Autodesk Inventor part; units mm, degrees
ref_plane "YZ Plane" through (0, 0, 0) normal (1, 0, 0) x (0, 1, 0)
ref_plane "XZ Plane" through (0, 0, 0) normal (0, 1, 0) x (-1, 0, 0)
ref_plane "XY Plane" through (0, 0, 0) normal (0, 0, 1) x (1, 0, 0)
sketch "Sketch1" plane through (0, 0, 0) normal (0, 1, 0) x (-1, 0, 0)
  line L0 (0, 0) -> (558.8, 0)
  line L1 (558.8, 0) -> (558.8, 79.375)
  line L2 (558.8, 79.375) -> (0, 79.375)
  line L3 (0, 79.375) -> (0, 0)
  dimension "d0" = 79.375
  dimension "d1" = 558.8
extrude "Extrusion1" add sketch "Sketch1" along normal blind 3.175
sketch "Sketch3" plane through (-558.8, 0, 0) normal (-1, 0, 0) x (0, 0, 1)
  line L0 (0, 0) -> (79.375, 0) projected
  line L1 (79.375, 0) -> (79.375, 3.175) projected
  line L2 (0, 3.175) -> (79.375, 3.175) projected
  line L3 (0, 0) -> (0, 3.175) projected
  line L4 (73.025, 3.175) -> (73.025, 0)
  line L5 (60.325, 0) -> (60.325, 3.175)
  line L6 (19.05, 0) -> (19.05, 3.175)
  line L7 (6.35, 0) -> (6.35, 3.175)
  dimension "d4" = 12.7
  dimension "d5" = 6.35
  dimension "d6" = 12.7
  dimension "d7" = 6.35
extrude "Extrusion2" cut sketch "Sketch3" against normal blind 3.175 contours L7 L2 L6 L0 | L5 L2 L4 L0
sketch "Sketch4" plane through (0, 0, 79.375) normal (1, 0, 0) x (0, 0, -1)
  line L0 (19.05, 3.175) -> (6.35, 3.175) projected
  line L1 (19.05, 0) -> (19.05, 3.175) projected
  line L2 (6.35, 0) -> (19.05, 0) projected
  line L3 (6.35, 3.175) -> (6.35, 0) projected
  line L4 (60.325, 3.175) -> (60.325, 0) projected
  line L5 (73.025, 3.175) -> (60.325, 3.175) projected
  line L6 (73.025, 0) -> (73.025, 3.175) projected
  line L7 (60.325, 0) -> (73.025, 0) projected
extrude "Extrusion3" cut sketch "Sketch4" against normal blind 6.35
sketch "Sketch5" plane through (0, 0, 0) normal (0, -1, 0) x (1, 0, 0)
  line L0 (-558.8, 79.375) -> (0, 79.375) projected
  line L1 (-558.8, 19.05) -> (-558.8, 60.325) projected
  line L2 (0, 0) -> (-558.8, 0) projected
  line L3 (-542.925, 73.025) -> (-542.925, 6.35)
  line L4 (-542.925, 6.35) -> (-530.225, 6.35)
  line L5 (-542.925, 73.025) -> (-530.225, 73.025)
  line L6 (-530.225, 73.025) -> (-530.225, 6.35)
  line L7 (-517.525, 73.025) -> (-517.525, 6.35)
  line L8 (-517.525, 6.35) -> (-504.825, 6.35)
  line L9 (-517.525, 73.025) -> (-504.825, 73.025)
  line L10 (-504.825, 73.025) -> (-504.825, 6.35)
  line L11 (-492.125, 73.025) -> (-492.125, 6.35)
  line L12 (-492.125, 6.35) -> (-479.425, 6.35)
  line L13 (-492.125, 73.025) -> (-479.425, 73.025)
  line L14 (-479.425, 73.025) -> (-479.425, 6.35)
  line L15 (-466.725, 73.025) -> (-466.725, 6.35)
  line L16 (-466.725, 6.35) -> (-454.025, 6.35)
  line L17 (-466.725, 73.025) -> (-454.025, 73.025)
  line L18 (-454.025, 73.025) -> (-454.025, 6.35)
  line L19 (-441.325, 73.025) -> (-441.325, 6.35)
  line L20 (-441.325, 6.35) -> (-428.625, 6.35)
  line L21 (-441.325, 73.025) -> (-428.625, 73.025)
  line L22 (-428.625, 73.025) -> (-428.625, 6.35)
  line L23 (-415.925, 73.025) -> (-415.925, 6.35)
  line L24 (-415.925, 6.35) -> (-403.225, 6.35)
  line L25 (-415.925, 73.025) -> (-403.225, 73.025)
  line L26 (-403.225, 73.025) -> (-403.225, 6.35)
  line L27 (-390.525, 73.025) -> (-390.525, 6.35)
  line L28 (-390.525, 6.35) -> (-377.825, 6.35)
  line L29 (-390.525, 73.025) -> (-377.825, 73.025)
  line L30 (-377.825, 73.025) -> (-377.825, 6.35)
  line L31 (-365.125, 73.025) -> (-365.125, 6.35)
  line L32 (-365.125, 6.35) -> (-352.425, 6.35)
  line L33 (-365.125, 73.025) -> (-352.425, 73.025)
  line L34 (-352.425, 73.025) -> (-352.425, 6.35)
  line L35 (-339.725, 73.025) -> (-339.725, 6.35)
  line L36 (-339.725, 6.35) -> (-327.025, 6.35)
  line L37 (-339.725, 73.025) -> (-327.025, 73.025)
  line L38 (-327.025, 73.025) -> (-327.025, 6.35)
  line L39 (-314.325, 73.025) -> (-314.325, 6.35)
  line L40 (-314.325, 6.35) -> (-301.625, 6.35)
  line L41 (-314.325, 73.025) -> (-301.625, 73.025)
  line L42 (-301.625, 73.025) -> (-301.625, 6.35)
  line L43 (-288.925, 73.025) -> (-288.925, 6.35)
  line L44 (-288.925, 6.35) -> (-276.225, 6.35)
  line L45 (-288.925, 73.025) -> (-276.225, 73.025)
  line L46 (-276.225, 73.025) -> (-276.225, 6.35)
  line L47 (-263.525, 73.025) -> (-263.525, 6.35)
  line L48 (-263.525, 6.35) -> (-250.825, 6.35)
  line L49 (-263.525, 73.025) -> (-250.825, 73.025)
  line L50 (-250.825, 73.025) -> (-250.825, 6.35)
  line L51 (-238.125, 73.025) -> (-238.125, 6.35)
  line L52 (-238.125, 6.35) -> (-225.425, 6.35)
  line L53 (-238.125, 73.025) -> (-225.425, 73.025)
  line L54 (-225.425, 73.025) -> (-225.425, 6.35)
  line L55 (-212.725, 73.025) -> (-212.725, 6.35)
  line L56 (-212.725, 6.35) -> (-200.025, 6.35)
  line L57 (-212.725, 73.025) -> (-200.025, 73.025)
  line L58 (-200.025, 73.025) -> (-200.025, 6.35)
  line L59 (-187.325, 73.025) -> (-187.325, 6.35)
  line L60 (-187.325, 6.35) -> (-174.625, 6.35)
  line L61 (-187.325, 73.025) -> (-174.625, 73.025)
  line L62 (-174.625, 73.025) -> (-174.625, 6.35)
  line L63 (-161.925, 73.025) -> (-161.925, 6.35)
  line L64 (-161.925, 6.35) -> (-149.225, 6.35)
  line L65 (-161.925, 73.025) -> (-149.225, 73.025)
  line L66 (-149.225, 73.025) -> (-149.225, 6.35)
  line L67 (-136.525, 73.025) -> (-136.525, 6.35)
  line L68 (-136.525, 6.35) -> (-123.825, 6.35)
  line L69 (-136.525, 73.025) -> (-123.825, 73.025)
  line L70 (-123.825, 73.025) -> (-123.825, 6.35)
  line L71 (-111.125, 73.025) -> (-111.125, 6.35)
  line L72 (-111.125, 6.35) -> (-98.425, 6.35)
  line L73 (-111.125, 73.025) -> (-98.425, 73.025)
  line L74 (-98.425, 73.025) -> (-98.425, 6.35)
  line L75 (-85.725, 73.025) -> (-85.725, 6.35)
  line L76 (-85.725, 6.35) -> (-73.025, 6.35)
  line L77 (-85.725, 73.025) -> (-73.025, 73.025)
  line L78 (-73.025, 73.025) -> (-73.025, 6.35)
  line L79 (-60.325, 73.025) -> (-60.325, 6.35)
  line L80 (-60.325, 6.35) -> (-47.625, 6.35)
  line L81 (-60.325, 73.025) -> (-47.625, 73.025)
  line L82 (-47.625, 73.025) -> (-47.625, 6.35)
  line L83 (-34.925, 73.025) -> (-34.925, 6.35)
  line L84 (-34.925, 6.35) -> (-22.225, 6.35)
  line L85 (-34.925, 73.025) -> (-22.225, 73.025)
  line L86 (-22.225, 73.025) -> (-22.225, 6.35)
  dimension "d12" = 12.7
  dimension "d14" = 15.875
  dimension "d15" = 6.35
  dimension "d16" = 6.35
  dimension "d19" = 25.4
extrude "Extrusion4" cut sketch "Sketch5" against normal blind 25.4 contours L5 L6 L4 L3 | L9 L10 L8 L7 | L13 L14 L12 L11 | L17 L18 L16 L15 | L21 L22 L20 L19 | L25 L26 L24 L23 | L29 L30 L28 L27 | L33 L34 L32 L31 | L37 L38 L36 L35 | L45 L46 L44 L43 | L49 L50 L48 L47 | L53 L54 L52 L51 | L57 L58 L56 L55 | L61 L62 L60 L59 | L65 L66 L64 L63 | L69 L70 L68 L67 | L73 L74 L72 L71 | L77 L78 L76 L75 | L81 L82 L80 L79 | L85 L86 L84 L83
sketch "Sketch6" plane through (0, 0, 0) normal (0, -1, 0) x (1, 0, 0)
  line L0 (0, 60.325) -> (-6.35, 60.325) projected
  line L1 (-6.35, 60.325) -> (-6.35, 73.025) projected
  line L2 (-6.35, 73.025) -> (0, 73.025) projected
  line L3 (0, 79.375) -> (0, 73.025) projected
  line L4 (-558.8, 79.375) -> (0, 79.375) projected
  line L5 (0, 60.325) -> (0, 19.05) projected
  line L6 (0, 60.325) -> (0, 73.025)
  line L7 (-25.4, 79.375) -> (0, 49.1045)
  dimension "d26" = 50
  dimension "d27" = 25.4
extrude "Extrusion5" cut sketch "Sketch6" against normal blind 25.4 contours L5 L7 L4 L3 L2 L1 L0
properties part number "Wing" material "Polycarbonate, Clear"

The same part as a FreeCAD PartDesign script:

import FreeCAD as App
import Part
import Sketcher
from FreeCAD import Vector
Q = App.Units.Quantity


def add_polygon(sketch, points):
    """Adds a closed chain of lines whose ends are joined by coincident constraints."""
    first, n = sketch.GeometryCount, len(points)
    for a, b in zip(points, points[1:] + points[:1]):
        sketch.addGeometry(Part.LineSegment(App.Vector(*a, 0), App.Vector(*b, 0)), False)
    for i in range(n):
        sketch.addConstraint(Sketcher.Constraint("Coincident", first + i, 2, first + (i + 1) % n, 1))

doc = App.newDocument("Part")
body = doc.addObject("PartDesign::Body", "Body")

# Sketch on XZ plane
sketch1 = body.newObject("Sketcher::SketchObject", "Sketch")
sketch1.AttachmentSupport = (doc.getObject("XZ_Plane"), [""])
sketch1.MapMode = "FlatFace"
add_polygon(sketch1, [(0, 79.375), (0, 0), (-558.8, 0), (-558.8, 79.375)])  # lines 0-3
sketch1.addConstraint([
    Sketcher.Constraint("Vertical", 0),
    Sketcher.Constraint("Horizontal", 1),
    Sketcher.Constraint("Vertical", 2),
    Sketcher.Constraint("Horizontal", 3),
    Sketcher.Constraint("Coincident", 0, 2, -1, 1),
    Sketcher.Constraint("DistanceX", 1, 2, 1, 1, Q("22 in")),
    Sketcher.Constraint("DistanceY", 0, 2, 0, 1, Q("3.125 in")),
])
pad1 = body.newObject("PartDesign::Pad", "Pad")
pad1.Profile = sketch1
pad1.Length = Q("0.125 in")
pad1.Reversed = True

# Sketch on YZ plane
sketch2 = body.newObject("Sketcher::SketchObject", "Sketch001")
sketch2.AttachmentSupport = (doc.getObject("YZ_Plane"), [""])
sketch2.MapMode = "FlatFace"
sketch2.AttachmentOffset = App.Placement(Vector(0, 0, -22 * 25.4), App.Rotation())
add_polygon(sketch2, [(3.175, 6.35), (0, 6.35), (0, 19.05), (3.175, 19.05)])  # lines 0-3
add_polygon(sketch2, [(3.175, 60.325), (0, 60.325), (0, 73.025), (3.175, 73.025)])  # lines 4-7
sketch2.addConstraint([
    Sketcher.Constraint("Horizontal", 0),
    Sketcher.Constraint("Vertical", 1),
    Sketcher.Constraint("Horizontal", 2),
    Sketcher.Constraint("Vertical", 3),
    Sketcher.Constraint("Horizontal", 4),
    Sketcher.Constraint("Vertical", 5),
    Sketcher.Constraint("Horizontal", 6),
    Sketcher.Constraint("Vertical", 7),
    Sketcher.Constraint("PointOnObject", 0, 2, -2),
    Sketcher.Constraint("PointOnObject", 4, 2, -2),
    Sketcher.Constraint("Vertical", 3, 2, 6, 2),
    Sketcher.Constraint("Equal", 3, 5),
    Sketcher.Constraint("DistanceY", 1, 1, 1, 2, Q("0.5 in")),
    Sketcher.Constraint("DistanceY", -1, 1, 0, 2, Q("0.25 in")),
    Sketcher.Constraint("DistanceX", 0, 2, 0, 1, Q("0.125 in")),
    Sketcher.Constraint("DistanceY", -1, 1, 4, 2, Q("2.375 in")),
])
pocket1 = body.newObject("PartDesign::Pocket", "Pocket")
pocket1.Profile = sketch2
pocket1.Length = Q("0.125 in")
pocket1.Reversed = True

# Sketch on YZ plane
sketch3 = body.newObject("Sketcher::SketchObject", "Sketch002")
sketch3.AttachmentSupport = (doc.getObject("YZ_Plane"), [""])
sketch3.MapMode = "FlatFace"
add_polygon(sketch3, [(0, 60.325), (3.175, 60.325), (3.175, 73.025), (0, 73.025)])  # lines 0-3
add_polygon(sketch3, [(3.175, 6.35), (3.175, 19.05), (0, 19.05), (0, 6.35)])  # lines 4-7
sketch3.addConstraint([
    Sketcher.Constraint("Horizontal", 0),
    Sketcher.Constraint("Vertical", 1),
    Sketcher.Constraint("Horizontal", 2),
    Sketcher.Constraint("Vertical", 3),
    Sketcher.Constraint("Vertical", 4),
    Sketcher.Constraint("Horizontal", 5),
    Sketcher.Constraint("Vertical", 6),
    Sketcher.Constraint("Horizontal", 7),
    Sketcher.Constraint("PointOnObject", 2, 2, -2),
    Sketcher.Constraint("PointOnObject", 5, 2, -2),
    Sketcher.Constraint("Vertical", 1, 2, 4, 2),
    Sketcher.Constraint("Equal", 3, 4),
    Sketcher.Constraint("DistanceY", 1, 1, 1, 2, Q("0.5 in")),
    Sketcher.Constraint("DistanceX", 0, 1, 0, 2, Q("0.125 in")),
    Sketcher.Constraint("DistanceY", -1, 1, 4, 2, Q("0.75 in")),
    Sketcher.Constraint("DistanceY", -1, 1, 0, 2, Q("2.375 in")),
])
pocket2 = body.newObject("PartDesign::Pocket", "Pocket001")
pocket2.Profile = sketch3
pocket2.Length = Q("0.25 in")

# Sketch on XZ plane
sketch4 = body.newObject("Sketcher::SketchObject", "Sketch003")
sketch4.AttachmentSupport = (doc.getObject("XZ_Plane"), [""])
sketch4.MapMode = "FlatFace"
add_polygon(sketch4, [(-530.225, 73.025), (-542.925, 73.025), (-542.925, 6.35), (-530.225, 6.35)])  # lines 0-3
add_polygon(sketch4, [(-504.825, 73.025), (-517.525, 73.025), (-517.525, 6.35), (-504.825, 6.35)])  # lines 4-7
add_polygon(sketch4, [(-479.425, 73.025), (-492.125, 73.025), (-492.125, 6.35), (-479.425, 6.35)])  # lines 8-11
add_polygon(sketch4, [(-454.025, 73.025), (-466.725, 73.025), (-466.725, 6.35), (-454.025, 6.35)])  # lines 12-15
add_polygon(sketch4, [(-428.625, 73.025), (-441.325, 73.025), (-441.325, 6.35), (-428.625, 6.35)])  # lines 16-19
add_polygon(sketch4, [(-403.225, 73.025), (-415.925, 73.025), (-415.925, 6.35), (-403.225, 6.35)])  # lines 20-23
add_polygon(sketch4, [(-377.825, 73.025), (-390.525, 73.025), (-390.525, 6.35), (-377.825, 6.35)])  # lines 24-27
add_polygon(sketch4, [(-352.425, 73.025), (-365.125, 73.025), (-365.125, 6.35), (-352.425, 6.35)])  # lines 28-31
add_polygon(sketch4, [(-327.025, 73.025), (-339.725, 73.025), (-339.725, 6.35), (-327.025, 6.35)])  # lines 32-35
add_polygon(sketch4, [(-276.225, 73.025), (-288.925, 73.025), (-288.925, 6.35), (-276.225, 6.35)])  # lines 36-39
add_polygon(sketch4, [(-250.825, 73.025), (-263.525, 73.025), (-263.525, 6.35), (-250.825, 6.35)])  # lines 40-43
add_polygon(sketch4, [(-225.425, 73.025), (-238.125, 73.025), (-238.125, 6.35), (-225.425, 6.35)])  # lines 44-47
add_polygon(sketch4, [(-200.025, 73.025), (-212.725, 73.025), (-212.725, 6.35), (-200.025, 6.35)])  # lines 48-51
add_polygon(sketch4, [(-174.625, 73.025), (-187.325, 73.025), (-187.325, 6.35), (-174.625, 6.35)])  # lines 52-55
add_polygon(sketch4, [(-149.225, 73.025), (-161.925, 73.025), (-161.925, 6.35), (-149.225, 6.35)])  # lines 56-59
add_polygon(sketch4, [(-123.825, 73.025), (-136.525, 73.025), (-136.525, 6.35), (-123.825, 6.35)])  # lines 60-63
add_polygon(sketch4, [(-98.425, 73.025), (-111.125, 73.025), (-111.125, 6.35), (-98.425, 6.35)])  # lines 64-67
add_polygon(sketch4, [(-73.025, 73.025), (-85.725, 73.025), (-85.725, 6.35), (-73.025, 6.35)])  # lines 68-71
add_polygon(sketch4, [(-47.625, 73.025), (-60.325, 73.025), (-60.325, 6.35), (-47.625, 6.35)])  # lines 72-75
add_polygon(sketch4, [(-22.225, 73.025), (-34.925, 73.025), (-34.925, 6.35), (-22.225, 6.35)])  # lines 76-79
sketch4.addConstraint([
    Sketcher.Constraint("Horizontal", 0),
    Sketcher.Constraint("Vertical", 1),
    Sketcher.Constraint("Horizontal", 2),
    Sketcher.Constraint("Vertical", 3),
    Sketcher.Constraint("Horizontal", 4),
    Sketcher.Constraint("Vertical", 5),
    Sketcher.Constraint("Horizontal", 6),
    Sketcher.Constraint("Vertical", 7),
    Sketcher.Constraint("Horizontal", 8),
    Sketcher.Constraint("Vertical", 9),
    Sketcher.Constraint("Horizontal", 10),
    Sketcher.Constraint("Vertical", 11),
    Sketcher.Constraint("Horizontal", 12),
    Sketcher.Constraint("Vertical", 13),
    Sketcher.Constraint("Horizontal", 14),
    Sketcher.Constraint("Vertical", 15),
    Sketcher.Constraint("Horizontal", 16),
    Sketcher.Constraint("Vertical", 17),
    Sketcher.Constraint("Horizontal", 18),
    Sketcher.Constraint("Vertical", 19),
    Sketcher.Constraint("Horizontal", 20),
    Sketcher.Constraint("Vertical", 21),
    Sketcher.Constraint("Horizontal", 22),
    Sketcher.Constraint("Vertical", 23),
    Sketcher.Constraint("Horizontal", 24),
    Sketcher.Constraint("Vertical", 25),
    Sketcher.Constraint("Horizontal", 26),
    Sketcher.Constraint("Vertical", 27),
    Sketcher.Constraint("Horizontal", 28),
    Sketcher.Constraint("Vertical", 29),
    Sketcher.Constraint("Horizontal", 30),
    Sketcher.Constraint("Vertical", 31),
    Sketcher.Constraint("Horizontal", 32),
    Sketcher.Constraint("Vertical", 33),
    Sketcher.Constraint("Horizontal", 34),
    Sketcher.Constraint("Vertical", 35),
    Sketcher.Constraint("Horizontal", 36),
    Sketcher.Constraint("Vertical", 37),
    Sketcher.Constraint("Horizontal", 38),
    Sketcher.Constraint("Vertical", 39),
    Sketcher.Constraint("Horizontal", 40),
    Sketcher.Constraint("Vertical", 41),
    Sketcher.Constraint("Horizontal", 42),
    Sketcher.Constraint("Vertical", 43),
    Sketcher.Constraint("Horizontal", 44),
    Sketcher.Constraint("Vertical", 45),
    Sketcher.Constraint("Horizontal", 46),
    Sketcher.Constraint("Vertical", 47),
    Sketcher.Constraint("Horizontal", 48),
    Sketcher.Constraint("Vertical", 49),
    Sketcher.Constraint("Horizontal", 50),
    Sketcher.Constraint("Vertical", 51),
    Sketcher.Constraint("Horizontal", 52),
    Sketcher.Constraint("Vertical", 53),
    Sketcher.Constraint("Horizontal", 54),
    Sketcher.Constraint("Vertical", 55),
    Sketcher.Constraint("Horizontal", 56),
    Sketcher.Constraint("Vertical", 57),
    Sketcher.Constraint("Horizontal", 58),
    Sketcher.Constraint("Vertical", 59),
    Sketcher.Constraint("Horizontal", 60),
    Sketcher.Constraint("Vertical", 61),
    Sketcher.Constraint("Horizontal", 62),
    Sketcher.Constraint("Vertical", 63),
    Sketcher.Constraint("Horizontal", 64),
    Sketcher.Constraint("Vertical", 65),
    Sketcher.Constraint("Horizontal", 66),
    Sketcher.Constraint("Vertical", 67),
    Sketcher.Constraint("Horizontal", 68),
    Sketcher.Constraint("Vertical", 69),
    Sketcher.Constraint("Horizontal", 70),
    Sketcher.Constraint("Vertical", 71),
    Sketcher.Constraint("Horizontal", 72),
    Sketcher.Constraint("Vertical", 73),
    Sketcher.Constraint("Horizontal", 74),
    Sketcher.Constraint("Vertical", 75),
    Sketcher.Constraint("Horizontal", 76),
    Sketcher.Constraint("Vertical", 77),
    Sketcher.Constraint("Horizontal", 78),
    Sketcher.Constraint("Vertical", 79),
    Sketcher.Constraint("Horizontal", 3, 2, 4, 2),
    Sketcher.Constraint("Horizontal", 2, 2, 5, 2),
    Sketcher.Constraint("Horizontal", 7, 2, 8, 2),
    Sketcher.Constraint("Horizontal", 6, 2, 9, 2),
    Sketcher.Constraint("Horizontal", 11, 2, 12, 2),
    Sketcher.Constraint("Horizontal", 10, 2, 13, 2),
    Sketcher.Constraint("Horizontal", 15, 2, 16, 2),
    Sketcher.Constraint("Horizontal", 14, 2, 17, 2),
    Sketcher.Constraint("Horizontal", 19, 2, 20, 2),
    Sketcher.Constraint("Horizontal", 18, 2, 21, 2),
    Sketcher.Constraint("Horizontal", 23, 2, 24, 2),
    Sketcher.Constraint("Horizontal", 22, 2, 25, 2),
    Sketcher.Constraint("Horizontal", 27, 2, 28, 2),
    Sketcher.Constraint("Horizontal", 26, 2, 29, 2),
    Sketcher.Constraint("Horizontal", 31, 2, 32, 2),
    Sketcher.Constraint("Horizontal", 30, 2, 33, 2),
    Sketcher.Constraint("Horizontal", 35, 2, 36, 2),
    Sketcher.Constraint("Horizontal", 34, 2, 37, 2),
    Sketcher.Constraint("Horizontal", 39, 2, 40, 2),
    Sketcher.Constraint("Horizontal", 38, 2, 41, 2),
    Sketcher.Constraint("Horizontal", 43, 2, 44, 2),
    Sketcher.Constraint("Horizontal", 42, 2, 45, 2),
    Sketcher.Constraint("Horizontal", 47, 2, 48, 2),
    Sketcher.Constraint("Horizontal", 46, 2, 49, 2),
    Sketcher.Constraint("Horizontal", 51, 2, 52, 2),
    Sketcher.Constraint("Horizontal", 50, 2, 53, 2),
    Sketcher.Constraint("Horizontal", 55, 2, 56, 2),
    Sketcher.Constraint("Horizontal", 54, 2, 57, 2),
    Sketcher.Constraint("Horizontal", 59, 2, 60, 2),
    Sketcher.Constraint("Horizontal", 58, 2, 61, 2),
    Sketcher.Constraint("Horizontal", 63, 2, 64, 2),
    Sketcher.Constraint("Horizontal", 62, 2, 65, 2),
    Sketcher.Constraint("Horizontal", 67, 2, 68, 2),
    Sketcher.Constraint("Horizontal", 66, 2, 69, 2),
    Sketcher.Constraint("Horizontal", 71, 2, 72, 2),
    Sketcher.Constraint("Horizontal", 70, 2, 73, 2),
    Sketcher.Constraint("Horizontal", 75, 2, 76, 2),
    Sketcher.Constraint("Horizontal", 74, 2, 77, 2),
    Sketcher.Constraint("Equal", 2, 4),
    Sketcher.Constraint("Equal", 6, 8),
    Sketcher.Constraint("Equal", 10, 12),
    Sketcher.Constraint("Equal", 14, 16),
    Sketcher.Constraint("Equal", 18, 20),
    Sketcher.Constraint("Equal", 22, 24),
    Sketcher.Constraint("Equal", 26, 28),
    Sketcher.Constraint("Equal", 30, 32),
    Sketcher.Constraint("Equal", 34, 36),
    Sketcher.Constraint("Equal", 38, 40),
    Sketcher.Constraint("Equal", 42, 44),
    Sketcher.Constraint("Equal", 46, 48),
    Sketcher.Constraint("Equal", 50, 52),
    Sketcher.Constraint("Equal", 54, 56),
    Sketcher.Constraint("Equal", 58, 60),
    Sketcher.Constraint("Equal", 62, 64),
    Sketcher.Constraint("Equal", 66, 68),
    Sketcher.Constraint("Equal", 70, 72),
    Sketcher.Constraint("Equal", 74, 76),
    Sketcher.Constraint("DistanceX", 0, 2, 0, 1, Q("0.5 in")),
    Sketcher.Constraint("DistanceY", -1, 1, 1, 2, Q("0.25 in")),
    Sketcher.Constraint("DistanceY", 1, 2, 1, 1, Q("2.625 in")),
    Sketcher.Constraint("DistanceX", 0, 2, -1, 1, Q("21.375 in")),
    Sketcher.Constraint("DistanceX", 4, 2, -1, 1, Q("20.375 in")),
    Sketcher.Constraint("DistanceX", 8, 2, -1, 1, Q("19.375 in")),
    Sketcher.Constraint("DistanceX", 12, 2, -1, 1, Q("18.375 in")),
    Sketcher.Constraint("DistanceX", 16, 2, -1, 1, Q("17.375 in")),
    Sketcher.Constraint("DistanceX", 20, 2, -1, 1, Q("16.375 in")),
    Sketcher.Constraint("DistanceX", 24, 2, -1, 1, Q("15.375 in")),
    Sketcher.Constraint("DistanceX", 28, 2, -1, 1, Q("14.375 in")),
    Sketcher.Constraint("DistanceX", 32, 2, -1, 1, Q("13.375 in")),
    Sketcher.Constraint("DistanceX", 36, 2, -1, 1, Q("11.375 in")),
    Sketcher.Constraint("DistanceX", 40, 2, -1, 1, Q("10.375 in")),
    Sketcher.Constraint("DistanceX", 44, 2, -1, 1, Q("9.375 in")),
    Sketcher.Constraint("DistanceX", 48, 2, -1, 1, Q("8.375 in")),
    Sketcher.Constraint("DistanceX", 52, 2, -1, 1, Q("7.375 in")),
    Sketcher.Constraint("DistanceX", 56, 2, -1, 1, Q("6.375 in")),
    Sketcher.Constraint("DistanceX", 60, 2, -1, 1, Q("5.375 in")),
    Sketcher.Constraint("DistanceX", 64, 2, -1, 1, Q("4.375 in")),
    Sketcher.Constraint("DistanceX", 68, 2, -1, 1, Q("3.375 in")),
    Sketcher.Constraint("DistanceX", 72, 2, -1, 1, Q("2.375 in")),
    Sketcher.Constraint("DistanceX", 76, 2, -1, 1, Q("1.375 in")),
])
pocket3 = body.newObject("PartDesign::Pocket", "Pocket002")
pocket3.Profile = sketch4
pocket3.Length = Q("1 in")

# Sketch on XZ plane
sketch5 = body.newObject("Sketcher::SketchObject", "Sketch004")
sketch5.AttachmentSupport = (doc.getObject("XZ_Plane"), [""])
sketch5.MapMode = "FlatFace"
add_polygon(sketch5, [(0, 49.1045), (0, 60.325), (-6.35, 60.325), (-6.35, 73.025), (0, 73.025), (0, 79.375), (-25.4, 79.375)])  # lines 0-6
sketch5.addConstraint([
    Sketcher.Constraint("Vertical", 0),
    Sketcher.Constraint("Horizontal", 1),
    Sketcher.Constraint("Vertical", 2),
    Sketcher.Constraint("Horizontal", 3),
    Sketcher.Constraint("Vertical", 4),
    Sketcher.Constraint("Horizontal", 5),
    Sketcher.Constraint("PointOnObject", 0, 2, -2),
    Sketcher.Constraint("PointOnObject", 3, 2, -2),
    Sketcher.Constraint("Equal", 3, 4),
    Sketcher.Constraint("DistanceX", 5, 2, 5, 1, Q("1 in")),
    Sketcher.Constraint("Angle", 6, Q("-50 deg")),
    Sketcher.Constraint("DistanceY", 2, 1, 2, 2, Q("0.5 in")),
    Sketcher.Constraint("DistanceX", 1, 2, 1, 1, Q("0.25 in")),
    Sketcher.Constraint("DistanceY", -1, 1, 0, 2, Q("2.375 in")),
])
pocket4 = body.newObject("PartDesign::Pocket", "Pocket003")
pocket4.Profile = sketch5
pocket4.Length = Q("1 in")

doc.recompute()
